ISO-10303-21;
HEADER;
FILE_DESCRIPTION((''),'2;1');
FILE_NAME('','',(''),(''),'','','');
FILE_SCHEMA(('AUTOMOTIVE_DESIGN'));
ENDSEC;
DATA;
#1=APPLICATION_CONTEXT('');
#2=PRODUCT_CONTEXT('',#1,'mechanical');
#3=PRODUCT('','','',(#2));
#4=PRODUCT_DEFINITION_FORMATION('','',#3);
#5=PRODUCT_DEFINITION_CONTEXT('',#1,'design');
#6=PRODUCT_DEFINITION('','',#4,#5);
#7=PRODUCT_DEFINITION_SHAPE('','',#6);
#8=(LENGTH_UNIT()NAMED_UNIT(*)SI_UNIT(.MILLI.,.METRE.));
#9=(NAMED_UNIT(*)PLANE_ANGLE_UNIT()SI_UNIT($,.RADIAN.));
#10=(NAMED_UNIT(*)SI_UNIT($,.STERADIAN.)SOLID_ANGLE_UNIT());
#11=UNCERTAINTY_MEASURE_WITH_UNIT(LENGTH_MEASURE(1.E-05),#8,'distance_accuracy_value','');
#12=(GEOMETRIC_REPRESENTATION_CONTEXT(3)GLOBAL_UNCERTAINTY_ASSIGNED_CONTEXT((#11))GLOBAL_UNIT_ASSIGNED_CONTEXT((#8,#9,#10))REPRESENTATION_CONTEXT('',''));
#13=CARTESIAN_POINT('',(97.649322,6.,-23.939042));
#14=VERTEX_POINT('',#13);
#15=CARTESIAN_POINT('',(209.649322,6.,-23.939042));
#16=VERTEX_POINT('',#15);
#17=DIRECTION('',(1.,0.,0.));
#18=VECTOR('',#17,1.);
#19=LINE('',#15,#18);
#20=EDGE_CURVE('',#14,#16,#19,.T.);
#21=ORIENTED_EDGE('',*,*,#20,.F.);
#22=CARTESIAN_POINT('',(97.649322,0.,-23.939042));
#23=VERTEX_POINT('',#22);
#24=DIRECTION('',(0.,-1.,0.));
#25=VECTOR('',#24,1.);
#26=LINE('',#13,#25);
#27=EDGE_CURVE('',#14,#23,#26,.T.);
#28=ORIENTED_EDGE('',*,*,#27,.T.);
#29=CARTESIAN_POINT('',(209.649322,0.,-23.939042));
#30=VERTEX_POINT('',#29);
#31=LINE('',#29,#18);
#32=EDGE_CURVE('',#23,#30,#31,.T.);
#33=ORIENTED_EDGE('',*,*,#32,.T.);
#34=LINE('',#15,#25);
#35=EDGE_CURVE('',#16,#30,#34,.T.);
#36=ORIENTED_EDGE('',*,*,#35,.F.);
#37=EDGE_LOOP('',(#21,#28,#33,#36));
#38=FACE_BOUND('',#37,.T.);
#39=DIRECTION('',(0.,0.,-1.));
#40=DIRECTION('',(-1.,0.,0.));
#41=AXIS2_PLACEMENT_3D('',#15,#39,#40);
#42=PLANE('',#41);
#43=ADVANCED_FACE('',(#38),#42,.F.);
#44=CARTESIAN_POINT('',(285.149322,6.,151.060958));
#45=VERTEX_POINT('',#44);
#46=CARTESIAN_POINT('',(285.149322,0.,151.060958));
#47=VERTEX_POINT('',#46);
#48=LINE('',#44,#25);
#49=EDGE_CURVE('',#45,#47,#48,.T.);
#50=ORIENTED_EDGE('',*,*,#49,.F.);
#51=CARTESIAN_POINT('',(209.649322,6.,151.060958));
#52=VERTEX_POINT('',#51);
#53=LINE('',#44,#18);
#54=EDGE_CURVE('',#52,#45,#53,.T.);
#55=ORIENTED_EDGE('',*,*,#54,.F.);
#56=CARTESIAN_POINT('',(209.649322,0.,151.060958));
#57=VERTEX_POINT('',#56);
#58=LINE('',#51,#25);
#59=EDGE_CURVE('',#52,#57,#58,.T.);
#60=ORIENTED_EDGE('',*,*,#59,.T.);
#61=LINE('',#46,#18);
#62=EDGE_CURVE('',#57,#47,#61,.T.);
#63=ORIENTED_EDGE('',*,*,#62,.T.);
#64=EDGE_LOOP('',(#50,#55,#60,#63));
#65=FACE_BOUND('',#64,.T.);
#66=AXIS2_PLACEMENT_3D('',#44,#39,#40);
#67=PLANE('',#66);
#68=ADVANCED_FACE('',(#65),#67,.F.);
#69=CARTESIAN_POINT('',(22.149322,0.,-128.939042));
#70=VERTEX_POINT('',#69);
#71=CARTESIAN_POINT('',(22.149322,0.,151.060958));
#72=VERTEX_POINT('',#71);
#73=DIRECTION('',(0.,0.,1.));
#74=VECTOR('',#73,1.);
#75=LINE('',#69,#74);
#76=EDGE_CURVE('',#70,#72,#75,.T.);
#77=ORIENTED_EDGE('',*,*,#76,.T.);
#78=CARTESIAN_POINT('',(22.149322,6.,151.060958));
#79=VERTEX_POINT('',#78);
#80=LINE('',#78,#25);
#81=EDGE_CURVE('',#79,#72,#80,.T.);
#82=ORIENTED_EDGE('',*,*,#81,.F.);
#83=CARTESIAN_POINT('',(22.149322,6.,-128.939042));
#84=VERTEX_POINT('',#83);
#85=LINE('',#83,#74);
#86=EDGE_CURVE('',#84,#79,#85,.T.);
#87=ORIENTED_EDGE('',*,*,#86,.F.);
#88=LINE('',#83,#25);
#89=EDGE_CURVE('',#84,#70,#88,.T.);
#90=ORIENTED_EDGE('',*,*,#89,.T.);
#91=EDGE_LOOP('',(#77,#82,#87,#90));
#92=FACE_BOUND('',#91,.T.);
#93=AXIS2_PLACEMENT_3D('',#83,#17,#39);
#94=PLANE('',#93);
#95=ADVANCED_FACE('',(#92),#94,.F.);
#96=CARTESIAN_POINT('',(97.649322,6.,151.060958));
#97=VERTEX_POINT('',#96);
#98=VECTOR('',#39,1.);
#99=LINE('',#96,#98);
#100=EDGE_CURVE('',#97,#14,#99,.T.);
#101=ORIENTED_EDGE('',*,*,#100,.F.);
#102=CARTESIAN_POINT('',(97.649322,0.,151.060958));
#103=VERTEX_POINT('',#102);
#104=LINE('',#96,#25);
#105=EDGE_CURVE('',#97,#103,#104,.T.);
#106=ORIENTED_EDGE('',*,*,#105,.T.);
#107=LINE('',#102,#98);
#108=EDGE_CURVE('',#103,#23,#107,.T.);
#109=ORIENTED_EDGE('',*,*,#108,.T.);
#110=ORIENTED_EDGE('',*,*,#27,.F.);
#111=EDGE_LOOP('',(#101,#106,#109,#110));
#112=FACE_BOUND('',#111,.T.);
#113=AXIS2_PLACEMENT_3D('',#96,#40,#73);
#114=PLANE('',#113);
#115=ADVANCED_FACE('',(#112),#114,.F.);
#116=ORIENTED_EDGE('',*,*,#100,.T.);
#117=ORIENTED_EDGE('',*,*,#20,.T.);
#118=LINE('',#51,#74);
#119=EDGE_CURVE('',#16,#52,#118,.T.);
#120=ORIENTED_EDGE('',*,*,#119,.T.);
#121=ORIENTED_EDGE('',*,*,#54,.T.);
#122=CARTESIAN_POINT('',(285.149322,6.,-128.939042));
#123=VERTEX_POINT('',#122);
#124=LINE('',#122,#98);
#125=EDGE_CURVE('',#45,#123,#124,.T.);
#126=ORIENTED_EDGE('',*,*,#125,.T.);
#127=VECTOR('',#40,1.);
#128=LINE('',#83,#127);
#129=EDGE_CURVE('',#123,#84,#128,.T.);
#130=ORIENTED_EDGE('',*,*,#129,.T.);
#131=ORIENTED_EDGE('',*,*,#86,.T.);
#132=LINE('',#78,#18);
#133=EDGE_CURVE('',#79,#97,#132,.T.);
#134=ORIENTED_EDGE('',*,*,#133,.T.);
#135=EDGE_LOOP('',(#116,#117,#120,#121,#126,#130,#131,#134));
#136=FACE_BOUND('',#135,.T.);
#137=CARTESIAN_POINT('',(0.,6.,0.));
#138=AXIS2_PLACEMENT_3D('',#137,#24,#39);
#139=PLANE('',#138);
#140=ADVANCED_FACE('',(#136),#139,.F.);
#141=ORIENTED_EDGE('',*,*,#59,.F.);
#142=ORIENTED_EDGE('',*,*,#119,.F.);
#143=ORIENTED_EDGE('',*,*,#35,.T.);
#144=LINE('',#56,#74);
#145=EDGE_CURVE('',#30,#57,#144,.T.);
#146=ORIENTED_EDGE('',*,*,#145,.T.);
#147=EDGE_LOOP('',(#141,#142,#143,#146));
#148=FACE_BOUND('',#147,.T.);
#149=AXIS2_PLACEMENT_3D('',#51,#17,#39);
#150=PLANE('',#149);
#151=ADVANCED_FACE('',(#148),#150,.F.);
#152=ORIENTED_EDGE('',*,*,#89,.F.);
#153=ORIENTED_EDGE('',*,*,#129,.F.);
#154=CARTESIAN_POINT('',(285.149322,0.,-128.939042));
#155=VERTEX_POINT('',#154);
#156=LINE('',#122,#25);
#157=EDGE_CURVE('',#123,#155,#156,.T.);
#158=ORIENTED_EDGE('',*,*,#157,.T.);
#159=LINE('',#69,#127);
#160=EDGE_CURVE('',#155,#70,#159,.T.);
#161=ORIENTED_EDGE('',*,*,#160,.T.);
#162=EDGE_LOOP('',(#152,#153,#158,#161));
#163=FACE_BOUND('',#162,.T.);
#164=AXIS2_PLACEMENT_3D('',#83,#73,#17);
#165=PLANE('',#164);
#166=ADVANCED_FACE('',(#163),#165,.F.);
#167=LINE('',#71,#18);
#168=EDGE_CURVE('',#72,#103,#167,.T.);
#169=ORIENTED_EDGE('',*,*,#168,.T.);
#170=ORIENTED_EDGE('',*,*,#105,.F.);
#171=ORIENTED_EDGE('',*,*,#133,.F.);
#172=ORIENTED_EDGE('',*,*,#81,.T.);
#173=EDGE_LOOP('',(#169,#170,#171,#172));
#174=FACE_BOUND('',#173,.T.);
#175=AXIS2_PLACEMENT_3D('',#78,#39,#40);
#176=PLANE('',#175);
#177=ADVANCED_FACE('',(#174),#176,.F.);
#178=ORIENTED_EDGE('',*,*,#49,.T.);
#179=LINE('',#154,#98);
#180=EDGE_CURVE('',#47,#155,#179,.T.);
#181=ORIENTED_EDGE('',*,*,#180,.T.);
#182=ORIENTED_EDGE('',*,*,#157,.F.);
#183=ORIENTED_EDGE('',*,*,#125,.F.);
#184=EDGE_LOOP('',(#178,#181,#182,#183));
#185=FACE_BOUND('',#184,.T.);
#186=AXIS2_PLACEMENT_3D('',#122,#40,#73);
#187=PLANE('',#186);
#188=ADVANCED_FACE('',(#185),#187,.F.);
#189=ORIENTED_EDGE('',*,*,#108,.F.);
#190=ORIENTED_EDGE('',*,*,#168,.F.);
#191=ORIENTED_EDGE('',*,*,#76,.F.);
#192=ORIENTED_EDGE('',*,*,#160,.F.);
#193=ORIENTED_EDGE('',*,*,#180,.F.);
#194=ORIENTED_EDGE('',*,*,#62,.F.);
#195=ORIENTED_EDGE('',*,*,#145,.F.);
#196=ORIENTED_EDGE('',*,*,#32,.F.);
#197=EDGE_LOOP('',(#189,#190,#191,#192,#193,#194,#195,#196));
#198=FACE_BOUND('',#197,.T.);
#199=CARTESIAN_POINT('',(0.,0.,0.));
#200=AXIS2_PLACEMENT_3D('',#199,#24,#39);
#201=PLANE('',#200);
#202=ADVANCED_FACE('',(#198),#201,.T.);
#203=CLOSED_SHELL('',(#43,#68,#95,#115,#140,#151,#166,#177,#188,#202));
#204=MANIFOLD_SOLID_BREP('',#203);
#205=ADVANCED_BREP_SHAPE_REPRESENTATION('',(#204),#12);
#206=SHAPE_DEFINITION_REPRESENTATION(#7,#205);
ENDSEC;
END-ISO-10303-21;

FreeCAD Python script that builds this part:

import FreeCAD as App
import Part
import Sketcher
from FreeCAD import Vector
Q = App.Units.Quantity

doc = App.newDocument("Part")
body = doc.addObject("PartDesign::Body", "Body")

# Sketch on XZ plane
sketch1 = body.newObject("Sketcher::SketchObject", "Sketch")
sketch1.AttachmentSupport = (doc.getObject("XZ_Plane"), [""])
sketch1.MapMode = "FlatFace"
sketch1.addGeometry([
    Part.LineSegment(Vector(22, -129, 0), Vector(22, 151, 0)),  # 0
    Part.LineSegment(Vector(22, 151, 0), Vector(98, 151, 0)),  # 1
    Part.LineSegment(Vector(98, 151, 0), Vector(98, -24, 0)),  # 2
    Part.LineSegment(Vector(98, -24, 0), Vector(210, -24, 0)),  # 3
    Part.LineSegment(Vector(210, -24, 0), Vector(210, 151, 0)),  # 4
    Part.LineSegment(Vector(210, 151, 0), Vector(285, 151, 0)),  # 5
    Part.LineSegment(Vector(285, 151, 0), Vector(285, -129, 0)),  # 6
    Part.LineSegment(Vector(285, -129, 0), Vector(22, -129, 0)),  # 7
], False)
sketch1.addConstraint([
    Sketcher.Constraint("Coincident", 0, 2, 1, 1),
    Sketcher.Constraint("Coincident", 1, 2, 2, 1),
    Sketcher.Constraint("Coincident", 2, 2, 3, 1),
    Sketcher.Constraint("Coincident", 3, 2, 4, 1),
    Sketcher.Constraint("Coincident", 4, 2, 5, 1),
    Sketcher.Constraint("Coincident", 5, 2, 6, 1),
    Sketcher.Constraint("Coincident", 6, 2, 7, 1),
    Sketcher.Constraint("Coincident", 7, 2, 0, 1),
    Sketcher.Constraint("Vertical", 0),
    Sketcher.Constraint("Horizontal", 1),
    Sketcher.Constraint("Vertical", 2),
    Sketcher.Constraint("Horizontal", 3),
    Sketcher.Constraint("Vertical", 4),
    Sketcher.Constraint("Horizontal", 5),
    Sketcher.Constraint("Vertical", 6),
    Sketcher.Constraint("Horizontal", 7),
    Sketcher.Constraint("Horizontal", 1, 2, 4, 2),
    Sketcher.Constraint("Equal", 1, 5),
    Sketcher.Constraint("DistanceX", 3, 1, 3, 2, Q("112 mm")),
    Sketcher.Constraint("DistanceX", 7, 2, 7, 1, Q("263 mm")),
    Sketcher.Constraint("DistanceY", 0, 1, 0, 2, Q("280 mm")),
    Sketcher.Constraint("DistanceY", 2, 2, 2, 1, Q("175 mm")),
    Sketcher.Constraint("DistanceX", -1, 1, 0, 2, Q("22.149322 mm")),
    Sketcher.Constraint("DistanceY", -1, 1, 0, 2, Q("151.060958 mm")),
])
pad1 = body.newObject("PartDesign::Pad", "Pad")
pad1.Profile = sketch1
pad1.Length = 6
pad1.Reversed = True

doc.recompute()
